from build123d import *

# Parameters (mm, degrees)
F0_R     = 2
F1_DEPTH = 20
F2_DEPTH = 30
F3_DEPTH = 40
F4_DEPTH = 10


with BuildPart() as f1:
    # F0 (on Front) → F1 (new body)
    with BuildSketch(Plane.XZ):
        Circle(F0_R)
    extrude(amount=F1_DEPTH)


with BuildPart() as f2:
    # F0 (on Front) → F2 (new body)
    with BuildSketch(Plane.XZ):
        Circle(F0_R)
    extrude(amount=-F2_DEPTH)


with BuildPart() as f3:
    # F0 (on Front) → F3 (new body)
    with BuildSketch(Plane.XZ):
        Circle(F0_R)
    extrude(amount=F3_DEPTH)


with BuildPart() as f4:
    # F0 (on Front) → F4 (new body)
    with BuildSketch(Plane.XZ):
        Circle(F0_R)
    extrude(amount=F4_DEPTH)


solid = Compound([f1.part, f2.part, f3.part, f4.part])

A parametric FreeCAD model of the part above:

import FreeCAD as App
import Part
import Sketcher
from FreeCAD import Vector
Q = App.Units.Quantity

doc = App.newDocument("Part")
params = doc.addObject("Spreadsheet::Sheet", "Params")
for row, (alias, value) in enumerate([
    ("sketch1_diameter", "4 mm"),
    ("pad1_length", "20 mm"),
    ("sketch2_diameter", "4 mm"),
    ("pad2_length", "30 mm"),
    ("sketch3_diameter", "4 mm"),
    ("pad3_length", "40 mm"),
    ("sketch4_diameter", "4 mm"),
    ("pad4_length", "10 mm"),
], start=1):
    params.set(f"A{row}", alias)
    params.set(f"B{row}", "=" + value)
    params.setAlias(f"B{row}", alias)

body = doc.addObject("PartDesign::Body", "Body")

sketch1 = body.newObject("Sketcher::SketchObject", "Sketch")
sketch1.AttachmentSupport = (doc.getObject("XZ_Plane"), [""])
sketch1.MapMode = "FlatFace"
sketch1.addGeometry(Part.Circle(Vector(0, 0, 0), Vector(0, 0, 1), 2), False)
sketch1.addConstraint([
    Sketcher.Constraint("Coincident", 0, 3, -1, 1),
    Sketcher.Constraint("Diameter", 0, Q("4 mm")),
])
sketch1.setExpression("Constraints[1]", "Params.sketch1_diameter")
pad1 = body.newObject("PartDesign::Pad", "Pad")
pad1.Profile = sketch1
pad1.setExpression("Length", "Params.pad1_length")
body2 = doc.addObject("PartDesign::Body", "Body001")

sketch2 = body2.newObject("Sketcher::SketchObject", "Sketch001")
sketch2.AttachmentSupport = (doc.getObject("XZ_Plane001"), [""])
sketch2.MapMode = "FlatFace"
sketch2.addGeometry(Part.Circle(Vector(0, 0, 0), Vector(0, 0, 1), 2), False)
sketch2.addConstraint([
    Sketcher.Constraint("Coincident", 0, 3, -1, 1),
    Sketcher.Constraint("Diameter", 0, Q("4 mm")),
])
sketch2.setExpression("Constraints[1]", "Params.sketch2_diameter")
pad2 = body2.newObject("PartDesign::Pad", "Pad001")
pad2.Profile = sketch2
pad2.setExpression("Length", "Params.pad2_length")
pad2.Reversed = True
body3 = doc.addObject("PartDesign::Body", "Body002")

sketch3 = body3.newObject("Sketcher::SketchObject", "Sketch002")
sketch3.AttachmentSupport = (doc.getObject("XZ_Plane002"), [""])
sketch3.MapMode = "FlatFace"
sketch3.addGeometry(Part.Circle(Vector(0, 0, 0), Vector(0, 0, 1), 2), False)
sketch3.addConstraint([
    Sketcher.Constraint("Coincident", 0, 3, -1, 1),
    Sketcher.Constraint("Diameter", 0, Q("4 mm")),
])
sketch3.setExpression("Constraints[1]", "Params.sketch3_diameter")
pad3 = body3.newObject("PartDesign::Pad", "Pad002")
pad3.Profile = sketch3
pad3.setExpression("Length", "Params.pad3_length")
body4 = doc.addObject("PartDesign::Body", "Body003")

sketch4 = body4.newObject("Sketcher::SketchObject", "Sketch003")
sketch4.AttachmentSupport = (doc.getObject("XZ_Plane003"), [""])
sketch4.MapMode = "FlatFace"
sketch4.addGeometry(Part.Circle(Vector(0, 0, 0), Vector(0, 0, 1), 2), False)
sketch4.addConstraint([
    Sketcher.Constraint("Coincident", 0, 3, -1, 1),
    Sketcher.Constraint("Diameter", 0, Q("4 mm")),
])
sketch4.setExpression("Constraints[1]", "Params.sketch4_diameter")
pad4 = body4.newObject("PartDesign::Pad", "Pad003")
pad4.Profile = sketch4
pad4.setExpression("Length", "Params.pad4_length")

doc.recompute()
